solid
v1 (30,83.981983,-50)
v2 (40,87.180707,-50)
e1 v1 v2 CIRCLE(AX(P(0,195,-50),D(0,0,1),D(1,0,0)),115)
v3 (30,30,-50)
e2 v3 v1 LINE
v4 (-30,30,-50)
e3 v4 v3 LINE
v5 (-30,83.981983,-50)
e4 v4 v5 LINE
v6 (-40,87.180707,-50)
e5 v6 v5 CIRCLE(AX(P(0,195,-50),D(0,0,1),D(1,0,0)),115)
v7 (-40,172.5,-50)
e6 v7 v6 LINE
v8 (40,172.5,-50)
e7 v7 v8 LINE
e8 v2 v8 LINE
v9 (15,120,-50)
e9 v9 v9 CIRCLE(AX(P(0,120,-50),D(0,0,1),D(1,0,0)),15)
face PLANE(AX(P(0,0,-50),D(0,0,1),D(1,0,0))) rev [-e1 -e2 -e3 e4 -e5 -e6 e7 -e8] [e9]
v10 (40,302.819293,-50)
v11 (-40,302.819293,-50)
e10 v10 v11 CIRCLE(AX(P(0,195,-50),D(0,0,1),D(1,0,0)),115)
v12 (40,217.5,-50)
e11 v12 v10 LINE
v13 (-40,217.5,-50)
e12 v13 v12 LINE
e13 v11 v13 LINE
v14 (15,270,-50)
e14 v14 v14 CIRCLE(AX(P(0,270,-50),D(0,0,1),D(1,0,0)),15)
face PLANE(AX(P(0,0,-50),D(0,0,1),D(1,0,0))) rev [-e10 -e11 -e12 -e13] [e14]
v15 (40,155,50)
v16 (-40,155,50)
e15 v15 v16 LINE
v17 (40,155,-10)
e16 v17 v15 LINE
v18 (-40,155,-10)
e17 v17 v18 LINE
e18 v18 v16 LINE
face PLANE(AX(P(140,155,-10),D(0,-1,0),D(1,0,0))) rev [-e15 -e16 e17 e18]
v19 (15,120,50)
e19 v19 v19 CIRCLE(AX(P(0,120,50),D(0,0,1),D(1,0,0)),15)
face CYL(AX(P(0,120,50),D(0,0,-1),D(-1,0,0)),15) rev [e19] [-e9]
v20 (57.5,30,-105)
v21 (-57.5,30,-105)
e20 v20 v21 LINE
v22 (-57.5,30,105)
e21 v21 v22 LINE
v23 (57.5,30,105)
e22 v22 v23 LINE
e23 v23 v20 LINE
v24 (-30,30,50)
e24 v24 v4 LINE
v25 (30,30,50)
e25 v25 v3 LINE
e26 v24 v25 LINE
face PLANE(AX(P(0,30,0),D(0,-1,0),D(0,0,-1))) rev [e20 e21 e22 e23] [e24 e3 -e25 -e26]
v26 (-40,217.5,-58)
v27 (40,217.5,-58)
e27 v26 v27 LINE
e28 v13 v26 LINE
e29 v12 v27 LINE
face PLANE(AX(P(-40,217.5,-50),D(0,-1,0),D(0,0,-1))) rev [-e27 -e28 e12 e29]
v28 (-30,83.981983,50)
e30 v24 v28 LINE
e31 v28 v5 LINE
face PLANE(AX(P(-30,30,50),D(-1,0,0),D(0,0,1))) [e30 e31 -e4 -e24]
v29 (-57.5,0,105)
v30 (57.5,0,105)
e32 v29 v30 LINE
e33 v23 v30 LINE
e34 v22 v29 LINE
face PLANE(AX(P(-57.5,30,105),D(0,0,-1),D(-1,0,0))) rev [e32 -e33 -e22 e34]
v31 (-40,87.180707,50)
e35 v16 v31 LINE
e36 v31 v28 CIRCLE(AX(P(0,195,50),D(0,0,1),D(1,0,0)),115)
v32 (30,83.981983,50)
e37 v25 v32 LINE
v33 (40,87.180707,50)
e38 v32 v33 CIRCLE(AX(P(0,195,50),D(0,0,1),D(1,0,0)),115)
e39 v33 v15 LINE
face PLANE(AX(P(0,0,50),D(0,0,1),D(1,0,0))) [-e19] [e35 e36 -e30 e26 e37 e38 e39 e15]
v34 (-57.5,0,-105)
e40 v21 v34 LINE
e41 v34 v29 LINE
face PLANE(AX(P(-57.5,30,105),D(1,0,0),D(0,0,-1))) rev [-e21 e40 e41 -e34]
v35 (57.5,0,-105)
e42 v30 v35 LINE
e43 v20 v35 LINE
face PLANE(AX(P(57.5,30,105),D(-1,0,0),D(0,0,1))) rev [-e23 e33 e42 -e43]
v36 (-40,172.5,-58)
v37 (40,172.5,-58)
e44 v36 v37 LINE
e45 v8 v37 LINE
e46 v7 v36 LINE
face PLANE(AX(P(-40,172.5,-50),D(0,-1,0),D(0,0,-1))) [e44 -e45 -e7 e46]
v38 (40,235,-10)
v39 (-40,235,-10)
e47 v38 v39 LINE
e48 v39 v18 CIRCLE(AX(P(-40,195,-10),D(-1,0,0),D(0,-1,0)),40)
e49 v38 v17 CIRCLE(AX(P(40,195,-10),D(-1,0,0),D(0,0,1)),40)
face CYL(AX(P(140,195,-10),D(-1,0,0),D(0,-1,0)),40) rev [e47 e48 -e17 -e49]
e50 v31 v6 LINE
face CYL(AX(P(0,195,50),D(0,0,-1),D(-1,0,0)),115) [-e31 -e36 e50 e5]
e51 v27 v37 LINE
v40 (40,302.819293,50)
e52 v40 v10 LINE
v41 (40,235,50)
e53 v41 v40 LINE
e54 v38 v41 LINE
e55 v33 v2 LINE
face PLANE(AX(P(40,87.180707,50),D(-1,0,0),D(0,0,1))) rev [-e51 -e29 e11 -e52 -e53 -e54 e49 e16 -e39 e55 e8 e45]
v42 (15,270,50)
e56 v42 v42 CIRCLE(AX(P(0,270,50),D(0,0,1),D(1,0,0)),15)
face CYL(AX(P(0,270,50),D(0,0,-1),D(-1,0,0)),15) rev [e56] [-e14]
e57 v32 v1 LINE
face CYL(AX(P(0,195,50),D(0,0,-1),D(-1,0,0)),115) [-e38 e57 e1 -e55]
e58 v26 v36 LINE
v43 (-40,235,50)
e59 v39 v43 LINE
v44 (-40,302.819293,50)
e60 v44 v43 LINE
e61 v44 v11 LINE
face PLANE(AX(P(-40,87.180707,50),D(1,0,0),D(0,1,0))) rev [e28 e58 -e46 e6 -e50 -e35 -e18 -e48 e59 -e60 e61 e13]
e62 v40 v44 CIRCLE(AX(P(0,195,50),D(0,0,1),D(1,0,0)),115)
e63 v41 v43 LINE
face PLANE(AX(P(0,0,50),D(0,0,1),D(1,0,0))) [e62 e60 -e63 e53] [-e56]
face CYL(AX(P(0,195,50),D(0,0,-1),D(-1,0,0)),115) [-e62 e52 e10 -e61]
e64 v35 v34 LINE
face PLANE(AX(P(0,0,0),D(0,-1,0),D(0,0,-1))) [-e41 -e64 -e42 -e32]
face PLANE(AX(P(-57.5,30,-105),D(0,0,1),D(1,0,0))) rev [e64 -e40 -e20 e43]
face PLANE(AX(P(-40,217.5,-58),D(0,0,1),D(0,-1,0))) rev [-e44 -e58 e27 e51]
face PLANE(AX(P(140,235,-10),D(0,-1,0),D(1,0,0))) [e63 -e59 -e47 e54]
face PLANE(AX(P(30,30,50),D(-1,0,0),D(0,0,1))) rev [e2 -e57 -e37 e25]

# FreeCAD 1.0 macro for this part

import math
import FreeCAD as App
import Part
import Sketcher


def add_polygon(sketch, points):
    """Adds a closed chain of lines whose ends are joined by coincident constraints."""
    first, n = sketch.GeometryCount, len(points)
    for a, b in zip(points, points[1:] + points[:1]):
        sketch.addGeometry(Part.LineSegment(App.Vector(*a, 0), App.Vector(*b, 0)), False)
    for i in range(n):
        sketch.addConstraint(Sketcher.Constraint("Coincident", first + i, 2, first + (i + 1) % n, 1))

doc = App.newDocument("Part")
params = doc.addObject("Spreadsheet::Sheet", "Params")
for row, (alias, value) in enumerate([
    ("sketch1_width", "115 mm"),
    ("sketch1_height", "210 mm"),
    ("pad1_length", "30 mm"),
    ("sketch2_width", "60 mm"),
    ("pad2_length", "100 mm"),
    ("sketch3_diameter", "30 mm"),
    ("sketch3_radius", "115 mm"),
    ("pad3_length", "100 mm"),
    ("sketch4_width", "45 mm"),
    ("sketch4_height", "8 mm"),
    ("pad4_length", "80 mm"),
    ("sketch5_radius", "40 mm"),
    ("sketch5_height", "60 mm"),
    ("pocket1_length", "180 mm"),
], start=1):
    params.set(f"A{row}", alias)
    params.set(f"B{row}", "=" + value)
    params.setAlias(f"B{row}", alias)

body = doc.addObject("PartDesign::Body", "Body")

# Sketch on XZ plane
sketch1 = body.newObject("Sketcher::SketchObject", "Sketch")
sketch1.AttachmentSupport = (doc.getObject("XZ_Plane"), [""])
sketch1.MapMode = "FlatFace"
add_polygon(sketch1, [(-58, -105), (-58, 105), (58, 105), (58, -105)])  # lines 0-3
sketch1.addConstraint(Sketcher.Constraint("Vertical", 0))
sketch1.addConstraint(Sketcher.Constraint("Horizontal", 1))
sketch1.addConstraint(Sketcher.Constraint("Vertical", 2))
sketch1.addConstraint(Sketcher.Constraint("Horizontal", 3))
sketch1.addConstraint(Sketcher.Constraint("Symmetric", 0, 2, 2, 2, -1, 1))
sketch1.addConstraint(Sketcher.Constraint("DistanceX", 1, 1, 1, 2, 115.0))
sketch1.addConstraint(Sketcher.Constraint("DistanceY", 0, 1, 0, 2, 210.0))
sketch1.setExpression("Constraints[9]", "Params.sketch1_width")
sketch1.setExpression("Constraints[10]", "Params.sketch1_height")
pad1 = body.newObject("PartDesign::Pad", "Pad")
pad1.Profile = sketch1
pad1.setExpression("Length", "Params.pad1_length")
pad1.Reversed = True

# Sketch on XY plane
sketch2 = body.newObject("Sketcher::SketchObject", "Sketch001")
sketch2.AttachmentSupport = (doc.getObject("XY_Plane"), [""])
sketch2.MapMode = "FlatFace"
add_polygon(sketch2, [(-30, 90), (-30, 30), (30, 30), (30, 90)])  # lines 0-3
sketch2.addConstraint(Sketcher.Constraint("Vertical", 0))
sketch2.addConstraint(Sketcher.Constraint("Horizontal", 1))
sketch2.addConstraint(Sketcher.Constraint("Vertical", 2))
sketch2.addConstraint(Sketcher.Constraint("Horizontal", 3))
sketch2.addConstraint(Sketcher.Constraint("Equal", 3, 0))
sketch2.addConstraint(Sketcher.Constraint("DistanceX", 1, 1, 1, 2, 60.0))
sketch2.addConstraint(Sketcher.Constraint("DistanceX", 0, 2, -1, 1, 30.0))
sketch2.addConstraint(Sketcher.Constraint("DistanceY", -1, 1, 0, 2, 30.0))
sketch2.setExpression("Constraints[9]", "Params.sketch2_width")
pad2 = body.newObject("PartDesign::Pad", "Pad001")
pad2.Profile = sketch2
pad2.setExpression("Length", "Params.pad2_length")
pad2.Midplane = True

# Sketch on XY plane
sketch3 = body.newObject("Sketcher::SketchObject", "Sketch002")
sketch3.AttachmentSupport = (doc.getObject("XY_Plane"), [""])
sketch3.MapMode = "FlatFace"
sketch3.addGeometry(Part.LineSegment(App.Vector(-40, 303, 0), App.Vector(-40, 87, 0)), False)
sketch3.addGeometry(Part.ArcOfCircle(Part.Circle(App.Vector(0, 195, 0), App.Vector(0, 0, 1), 115), math.radians(-110), math.radians(-70)), False)
sketch3.addGeometry(Part.LineSegment(App.Vector(40, 87, 0), App.Vector(40, 303, 0)), False)
sketch3.addGeometry(Part.ArcOfCircle(Part.Circle(App.Vector(0, 195, 0), App.Vector(0, 0, 1), 115), math.radians(70), math.radians(110)), False)
sketch3.addGeometry(Part.Circle(App.Vector(0, 120, 0), App.Vector(0, 0, 1), 15), False)
sketch3.addGeometry(Part.Circle(App.Vector(0, 270, 0), App.Vector(0, 0, 1), 15), False)
sketch3.addConstraint(Sketcher.Constraint("Coincident", 0, 2, 1, 1))
sketch3.addConstraint(Sketcher.Constraint("Coincident", 1, 2, 2, 1))
sketch3.addConstraint(Sketcher.Constraint("Coincident", 2, 2, 3, 1))
sketch3.addConstraint(Sketcher.Constraint("Coincident", 3, 2, 0, 1))
sketch3.addConstraint(Sketcher.Constraint("Vertical", 0))
sketch3.addConstraint(Sketcher.Constraint("Vertical", 2))
sketch3.addConstraint(Sketcher.Constraint("Coincident", 3, 3, 1, 3))
sketch3.addConstraint(Sketcher.Constraint("Equal", 1, 3))
sketch3.addConstraint(Sketcher.Constraint("Equal", 4, 5))
sketch3.addConstraint(Sketcher.Constraint("Symmetric", 0, 2, 1, 2, -2))
sketch3.addConstraint(Sketcher.Constraint("PointOnObject", 4, 3, -2))
sketch3.addConstraint(Sketcher.Constraint("PointOnObject", 5, 3, -2))
sketch3.addConstraint(Sketcher.Constraint("Diameter", 4, 30.0))
sketch3.addConstraint(Sketcher.Constraint("Radius", 1, 115.0))
sketch3.addConstraint(Sketcher.Constraint("DistanceY", -1, 1, 1, 3, 195.0))
sketch3.addConstraint(Sketcher.Constraint("DistanceY", -1, 1, 4, 3, 120.0))
sketch3.addConstraint(Sketcher.Constraint("DistanceY", -1, 1, 5, 3, 270.0))
sketch3.addConstraint(Sketcher.Constraint("DistanceX", 0, 2, -1, 1, 40.0))
sketch3.setExpression("Constraints[12]", "Params.sketch3_diameter")
sketch3.setExpression("Constraints[13]", "Params.sketch3_radius")
pad3 = body.newObject("PartDesign::Pad", "Pad002")
pad3.Profile = sketch3
pad3.setExpression("Length", "Params.pad3_length")
pad3.Midplane = True

# Sketch on YZ plane
sketch4 = body.newObject("Sketcher::SketchObject", "Sketch003")
sketch4.AttachmentSupport = (doc.getObject("YZ_Plane"), [""])
sketch4.MapMode = "FlatFace"
sketch4.AttachmentOffset = App.Placement(App.Vector(0, 0, 40), App.Rotation())
add_polygon(sketch4, [(218, -50), (172, -50), (172, -58), (218, -58)])  # lines 0-3
sketch4.addConstraint(Sketcher.Constraint("Horizontal", 0))
sketch4.addConstraint(Sketcher.Constraint("Vertical", 1))
sketch4.addConstraint(Sketcher.Constraint("Horizontal", 2))
sketch4.addConstraint(Sketcher.Constraint("Vertical", 3))
sketch4.addConstraint(Sketcher.Constraint("DistanceX", 0, 2, 0, 1, 45.0))
sketch4.addConstraint(Sketcher.Constraint("DistanceY", 1, 2, 1, 1, 8.0))
sketch4.addConstraint(Sketcher.Constraint("DistanceY", 0, 2, -1, 1, 50.0))
sketch4.addConstraint(Sketcher.Constraint("DistanceX", -1, 1, 0, 2, 172.5))
sketch4.setExpression("Constraints[8]", "Params.sketch4_width")
sketch4.setExpression("Constraints[9]", "Params.sketch4_height")
pad4 = body.newObject("PartDesign::Pad", "Pad003")
pad4.Profile = sketch4
pad4.setExpression("Length", "Params.pad4_length")
pad4.Reversed = True

# Sketch on YZ plane
sketch5 = body.newObject("Sketcher::SketchObject", "Sketch004")
sketch5.AttachmentSupport = (doc.getObject("YZ_Plane"), [""])
sketch5.MapMode = "FlatFace"
sketch5.AttachmentOffset = App.Placement(App.Vector(0, 0, -40), App.Rotation())
sketch5.addGeometry(Part.LineSegment(App.Vector(235, 50, 0), App.Vector(235, -10, 0)), False)
sketch5.addGeometry(Part.ArcOfCircle(Part.Circle(App.Vector(195, -10, 0), App.Vector(0, 0, 1), 40), math.radians(180), math.radians(360)), False)
sketch5.addGeometry(Part.LineSegment(App.Vector(155, -10, 0), App.Vector(155, 50, 0)), False)
sketch5.addGeometry(Part.LineSegment(App.Vector(155, 50, 0), App.Vector(235, 50, 0)), False)
sketch5.addConstraint(Sketcher.Constraint("Tangent", 0, 2, 1, 2))
sketch5.addConstraint(Sketcher.Constraint("Tangent", 1, 1, 2, 1))
sketch5.addConstraint(Sketcher.Constraint("Coincident", 2, 2, 3, 1))
sketch5.addConstraint(Sketcher.Constraint("Coincident", 3, 2, 0, 1))
sketch5.addConstraint(Sketcher.Constraint("Vertical", 0))
sketch5.addConstraint(Sketcher.Constraint("Vertical", 2))
sketch5.addConstraint(Sketcher.Constraint("Horizontal", 3))
sketch5.addConstraint(Sketcher.Constraint("Radius", 1, 40.0))
sketch5.addConstraint(Sketcher.Constraint("DistanceY", 0, 2, 0, 1, 60.0))
sketch5.addConstraint(Sketcher.Constraint("DistanceX", -1, 1, 1, 3, 195.0))
sketch5.addConstraint(Sketcher.Constraint("DistanceY", 1, 3, -1, 1, 10.0))
sketch5.setExpression("Constraints[7]", "Params.sketch5_radius")
sketch5.setExpression("Constraints[8]", "Params.sketch5_height")
pocket1 = body.newObject("PartDesign::Pocket", "Pocket")
pocket1.Profile = sketch5
pocket1.setExpression("Length", "Params.pocket1_length")
pocket1.Reversed = True

doc.recompute()
